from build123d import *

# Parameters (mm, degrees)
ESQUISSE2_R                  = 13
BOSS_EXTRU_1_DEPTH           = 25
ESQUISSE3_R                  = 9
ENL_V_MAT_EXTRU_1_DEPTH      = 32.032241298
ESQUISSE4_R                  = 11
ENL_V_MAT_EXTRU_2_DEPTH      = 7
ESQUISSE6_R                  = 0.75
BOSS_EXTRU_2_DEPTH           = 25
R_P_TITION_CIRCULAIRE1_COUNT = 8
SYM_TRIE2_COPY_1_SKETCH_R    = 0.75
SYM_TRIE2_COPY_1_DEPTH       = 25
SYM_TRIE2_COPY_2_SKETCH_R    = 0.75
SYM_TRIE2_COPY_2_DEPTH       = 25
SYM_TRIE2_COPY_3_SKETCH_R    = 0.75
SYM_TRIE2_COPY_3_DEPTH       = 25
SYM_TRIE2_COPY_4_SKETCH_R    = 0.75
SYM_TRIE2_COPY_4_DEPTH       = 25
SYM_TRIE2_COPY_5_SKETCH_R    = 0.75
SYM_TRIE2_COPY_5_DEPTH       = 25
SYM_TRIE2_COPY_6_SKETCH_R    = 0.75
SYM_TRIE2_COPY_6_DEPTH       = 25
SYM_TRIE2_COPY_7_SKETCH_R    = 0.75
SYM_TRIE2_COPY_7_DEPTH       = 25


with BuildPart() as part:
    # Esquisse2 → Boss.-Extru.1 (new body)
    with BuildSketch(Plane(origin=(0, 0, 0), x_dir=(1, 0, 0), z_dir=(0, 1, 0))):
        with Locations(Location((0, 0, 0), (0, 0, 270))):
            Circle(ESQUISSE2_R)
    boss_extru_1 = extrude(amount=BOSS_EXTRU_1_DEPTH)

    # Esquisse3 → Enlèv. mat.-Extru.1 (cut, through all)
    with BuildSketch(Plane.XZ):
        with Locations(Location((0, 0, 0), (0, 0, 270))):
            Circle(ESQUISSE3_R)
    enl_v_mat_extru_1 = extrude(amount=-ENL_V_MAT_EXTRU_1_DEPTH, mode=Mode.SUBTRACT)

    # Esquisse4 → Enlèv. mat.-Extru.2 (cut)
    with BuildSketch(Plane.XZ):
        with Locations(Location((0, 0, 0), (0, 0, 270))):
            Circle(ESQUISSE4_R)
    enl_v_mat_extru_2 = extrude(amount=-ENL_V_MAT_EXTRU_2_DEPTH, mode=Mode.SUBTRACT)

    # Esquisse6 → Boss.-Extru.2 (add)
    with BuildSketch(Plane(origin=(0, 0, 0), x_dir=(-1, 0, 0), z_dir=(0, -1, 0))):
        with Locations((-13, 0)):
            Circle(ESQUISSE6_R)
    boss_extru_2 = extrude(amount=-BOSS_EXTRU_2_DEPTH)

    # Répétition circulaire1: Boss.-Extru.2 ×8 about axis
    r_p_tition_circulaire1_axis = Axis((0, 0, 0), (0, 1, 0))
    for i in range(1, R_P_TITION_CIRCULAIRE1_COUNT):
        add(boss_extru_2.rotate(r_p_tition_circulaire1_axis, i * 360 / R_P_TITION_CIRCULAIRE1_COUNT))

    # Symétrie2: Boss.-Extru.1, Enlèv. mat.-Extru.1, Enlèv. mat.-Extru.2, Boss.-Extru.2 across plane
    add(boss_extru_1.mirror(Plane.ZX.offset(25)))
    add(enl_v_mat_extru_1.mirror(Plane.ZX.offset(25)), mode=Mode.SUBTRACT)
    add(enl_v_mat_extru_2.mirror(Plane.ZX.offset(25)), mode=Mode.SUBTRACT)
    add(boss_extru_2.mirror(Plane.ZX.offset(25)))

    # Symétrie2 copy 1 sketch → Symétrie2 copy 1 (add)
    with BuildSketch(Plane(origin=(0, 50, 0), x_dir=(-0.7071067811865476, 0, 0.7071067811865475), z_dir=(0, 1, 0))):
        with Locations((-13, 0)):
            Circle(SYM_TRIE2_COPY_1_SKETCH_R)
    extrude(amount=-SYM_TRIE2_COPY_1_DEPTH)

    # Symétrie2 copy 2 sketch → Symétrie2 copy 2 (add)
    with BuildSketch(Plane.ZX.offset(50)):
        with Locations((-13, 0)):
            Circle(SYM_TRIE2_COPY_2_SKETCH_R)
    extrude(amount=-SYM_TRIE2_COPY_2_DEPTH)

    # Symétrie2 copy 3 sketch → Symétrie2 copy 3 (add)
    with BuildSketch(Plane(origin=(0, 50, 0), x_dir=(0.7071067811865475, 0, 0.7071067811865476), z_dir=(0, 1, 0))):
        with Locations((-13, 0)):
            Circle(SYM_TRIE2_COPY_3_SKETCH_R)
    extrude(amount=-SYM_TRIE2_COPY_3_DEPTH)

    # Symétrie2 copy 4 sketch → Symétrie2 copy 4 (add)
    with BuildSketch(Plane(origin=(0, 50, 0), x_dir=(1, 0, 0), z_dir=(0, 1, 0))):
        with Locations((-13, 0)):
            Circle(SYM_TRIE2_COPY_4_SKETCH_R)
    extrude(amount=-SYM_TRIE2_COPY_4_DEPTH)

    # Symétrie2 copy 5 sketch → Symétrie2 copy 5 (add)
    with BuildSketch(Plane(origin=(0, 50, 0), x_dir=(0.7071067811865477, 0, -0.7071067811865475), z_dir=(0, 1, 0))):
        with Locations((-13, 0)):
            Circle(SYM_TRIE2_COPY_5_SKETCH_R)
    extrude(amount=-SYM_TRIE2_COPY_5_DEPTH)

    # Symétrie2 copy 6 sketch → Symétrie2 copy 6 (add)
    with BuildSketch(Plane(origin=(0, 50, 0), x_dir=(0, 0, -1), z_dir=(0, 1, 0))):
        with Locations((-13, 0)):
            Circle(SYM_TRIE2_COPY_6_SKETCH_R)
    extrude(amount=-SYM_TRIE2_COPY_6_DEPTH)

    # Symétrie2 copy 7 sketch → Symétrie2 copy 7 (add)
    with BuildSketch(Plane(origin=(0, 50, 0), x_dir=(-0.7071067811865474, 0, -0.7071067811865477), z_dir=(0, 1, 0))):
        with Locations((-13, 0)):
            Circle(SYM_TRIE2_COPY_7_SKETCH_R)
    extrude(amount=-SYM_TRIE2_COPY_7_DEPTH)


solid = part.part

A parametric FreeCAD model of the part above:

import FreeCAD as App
import Part
import Sketcher

doc = App.newDocument("Part")
body = doc.addObject("PartDesign::Body", "Body")

# Sketch on XZ plane
sketch1 = body.newObject("Sketcher::SketchObject", "Sketch")
sketch1.AttachmentSupport = (doc.getObject("XZ_Plane"), [""])
sketch1.MapMode = "FlatFace"
sketch1.addGeometry(Part.Circle(App.Vector(0, 0, 0), App.Vector(0, 0, 1), 13), False)
sketch1.addConstraint([
    Sketcher.Constraint("Coincident", 0, 3, -1, 1),
    Sketcher.Constraint("Diameter", 0, 26.0),
])
pad1 = body.newObject("PartDesign::Pad", "Pad")
pad1.Profile = sketch1
pad1.Length = 25
pad1.Reversed = True

# Sketch on XZ plane
sketch2 = body.newObject("Sketcher::SketchObject", "Sketch001")
sketch2.AttachmentSupport = (doc.getObject("XZ_Plane"), [""])
sketch2.MapMode = "FlatFace"
sketch2.addGeometry(Part.Circle(App.Vector(0, 0, 0), App.Vector(0, 0, 1), 9), False)
sketch2.addConstraint([
    Sketcher.Constraint("Coincident", 0, 3, -1, 1),
    Sketcher.Constraint("Diameter", 0, 18.0),
])
pocket1 = body.newObject("PartDesign::Pocket", "Pocket")
pocket1.Profile = sketch2
pocket1.Type = "ThroughAll"

# Sketch on XZ plane
sketch3 = body.newObject("Sketcher::SketchObject", "Sketch002")
sketch3.AttachmentSupport = (doc.getObject("XZ_Plane"), [""])
sketch3.MapMode = "FlatFace"
sketch3.addGeometry(Part.Circle(App.Vector(0, 0, 0), App.Vector(0, 0, 1), 11), False)
sketch3.addConstraint([
    Sketcher.Constraint("Coincident", 0, 3, -1, 1),
    Sketcher.Constraint("Diameter", 0, 22.0),
])
pocket2 = body.newObject("PartDesign::Pocket", "Pocket001")
pocket2.Profile = sketch3
pocket2.Length = 7

# Sketch on XZ plane
sketch4 = body.newObject("Sketcher::SketchObject", "Sketch003")
sketch4.AttachmentSupport = (doc.getObject("XZ_Plane"), [""])
sketch4.MapMode = "FlatFace"
sketch4.addGeometry(Part.Circle(App.Vector(13, 0, 0), App.Vector(0, 0, 1), 0.8), False)
sketch4.addConstraint([
    Sketcher.Constraint("PointOnObject", 0, 3, -1),
    Sketcher.Constraint("Diameter", 0, 1.5),
    Sketcher.Constraint("DistanceX", -1, 1, 0, 3, 13.0),
])
pad2 = body.newObject("PartDesign::Pad", "Pad001")
pad2.Profile = sketch4
pad2.Length = 25
pad2.Reversed = True
doc.recompute()

polarpattern = body.newObject("PartDesign::PolarPattern", "PolarPattern")
polarpattern.Originals = [pad2]
polarpattern.Axis = (doc.getObject("Y_Axis"), [""])
polarpattern.Angle = 360
polarpattern.Occurrences = 8
body.Tip = polarpattern
doc.recompute()

datumplane = body.newObject("PartDesign::Plane", "DatumPlane")
datumplane.AttachmentSupport = (doc.getObject("XZ_Plane"), [""])
datumplane.MapMode = "FlatFace"
datumplane.AttachmentOffset = App.Placement(App.Vector(0, 0, -25), App.Rotation())
mirrored = body.newObject("PartDesign::Mirrored", "Mirrored")
mirrored.Originals = [pad1, pocket1, pocket2, pad2]
mirrored.MirrorPlane = (datumplane, [""])
body.Tip = mirrored

# Sketch on XZ plane
sketch5 = body.newObject("Sketcher::SketchObject", "Sketch004")
sketch5.AttachmentSupport = (doc.getObject("XZ_Plane"), [""])
sketch5.MapMode = "FlatFace"
sketch5.AttachmentOffset = App.Placement(App.Vector(0, 0, -50), App.Rotation())
sketch5.addGeometry(Part.Circle(App.Vector(9.2, -9.2, 0), App.Vector(0, 0, 1), 0.8), False)
sketch5.addConstraint([
    Sketcher.Constraint("Diameter", 0, 1.5),
    Sketcher.Constraint("DistanceX", -1, 1, 0, 3, 9.192388),
    Sketcher.Constraint("DistanceY", 0, 3, -1, 1, 9.192388),
])
pad3 = body.newObject("PartDesign::Pad", "Pad002")
pad3.Profile = sketch5
pad3.Length = 25

# Sketch on XZ plane
sketch6 = body.newObject("Sketcher::SketchObject", "Sketch005")
sketch6.AttachmentSupport = (doc.getObject("XZ_Plane"), [""])
sketch6.MapMode = "FlatFace"
sketch6.AttachmentOffset = App.Placement(App.Vector(0, 0, -50), App.Rotation())
sketch6.addGeometry(Part.Circle(App.Vector(0, -13, 0), App.Vector(0, 0, 1), 0.8), False)
sketch6.addConstraint([
    Sketcher.Constraint("PointOnObject", 0, 3, -2),
    Sketcher.Constraint("Diameter", 0, 1.5),
    Sketcher.Constraint("DistanceY", 0, 3, -1, 1, 13.0),
])
pad4 = body.newObject("PartDesign::Pad", "Pad003")
pad4.Profile = sketch6
pad4.Length = 25

# Sketch on XZ plane
sketch7 = body.newObject("Sketcher::SketchObject", "Sketch006")
sketch7.AttachmentSupport = (doc.getObject("XZ_Plane"), [""])
sketch7.MapMode = "FlatFace"
sketch7.AttachmentOffset = App.Placement(App.Vector(0, 0, -50), App.Rotation())
sketch7.addGeometry(Part.Circle(App.Vector(-9.2, -9.2, 0), App.Vector(0, 0, 1), 0.8), False)
sketch7.addConstraint([
    Sketcher.Constraint("Diameter", 0, 1.5),
    Sketcher.Constraint("DistanceX", 0, 3, -1, 1, 9.192388),
    Sketcher.Constraint("DistanceY", 0, 3, -1, 1, 9.192388),
])
pad5 = body.newObject("PartDesign::Pad", "Pad004")
pad5.Profile = sketch7
pad5.Length = 25

# Sketch on XZ plane
sketch8 = body.newObject("Sketcher::SketchObject", "Sketch007")
sketch8.AttachmentSupport = (doc.getObject("XZ_Plane"), [""])
sketch8.MapMode = "FlatFace"
sketch8.AttachmentOffset = App.Placement(App.Vector(0, 0, -50), App.Rotation())
sketch8.addGeometry(Part.Circle(App.Vector(-13, 0, 0), App.Vector(0, 0, 1), 0.8), False)
sketch8.addConstraint([
    Sketcher.Constraint("PointOnObject", 0, 3, -1),
    Sketcher.Constraint("Diameter", 0, 1.5),
    Sketcher.Constraint("DistanceX", 0, 3, -1, 1, 13.0),
])
pad6 = body.newObject("PartDesign::Pad", "Pad005")
pad6.Profile = sketch8
pad6.Length = 25

# Sketch on XZ plane
sketch9 = body.newObject("Sketcher::SketchObject", "Sketch008")
sketch9.AttachmentSupport = (doc.getObject("XZ_Plane"), [""])
sketch9.MapMode = "FlatFace"
sketch9.AttachmentOffset = App.Placement(App.Vector(0, 0, -50), App.Rotation())
sketch9.addGeometry(Part.Circle(App.Vector(-9.2, 9.2, 0), App.Vector(0, 0, 1), 0.8), False)
sketch9.addConstraint([
    Sketcher.Constraint("Diameter", 0, 1.5),
    Sketcher.Constraint("DistanceX", 0, 3, -1, 1, 9.192388),
    Sketcher.Constraint("DistanceY", -1, 1, 0, 3, 9.192388),
])
pad7 = body.newObject("PartDesign::Pad", "Pad006")
pad7.Profile = sketch9
pad7.Length = 25

# Sketch on XZ plane
sketch10 = body.newObject("Sketcher::SketchObject", "Sketch009")
sketch10.AttachmentSupport = (doc.getObject("XZ_Plane"), [""])
sketch10.MapMode = "FlatFace"
sketch10.AttachmentOffset = App.Placement(App.Vector(0, 0, -50), App.Rotation())
sketch10.addGeometry(Part.Circle(App.Vector(0, 13, 0), App.Vector(0, 0, 1), 0.8), False)
sketch10.addConstraint([
    Sketcher.Constraint("PointOnObject", 0, 3, -2),
    Sketcher.Constraint("Diameter", 0, 1.5),
    Sketcher.Constraint("DistanceY", -1, 1, 0, 3, 13.0),
])
pad8 = body.newObject("PartDesign::Pad", "Pad007")
pad8.Profile = sketch10
pad8.Length = 25

# Sketch on XZ plane
sketch11 = body.newObject("Sketcher::SketchObject", "Sketch010")
sketch11.AttachmentSupport = (doc.getObject("XZ_Plane"), [""])
sketch11.MapMode = "FlatFace"
sketch11.AttachmentOffset = App.Placement(App.Vector(0, 0, -50), App.Rotation())
sketch11.addGeometry(Part.Circle(App.Vector(9.2, 9.2, 0), App.Vector(0, 0, 1), 0.8), False)
sketch11.addConstraint([
    Sketcher.Constraint("Diameter", 0, 1.5),
    Sketcher.Constraint("DistanceX", -1, 1, 0, 3, 9.192388),
    Sketcher.Constraint("DistanceY", -1, 1, 0, 3, 9.192388),
])
pad9 = body.newObject("PartDesign::Pad", "Pad008")
pad9.Profile = sketch11
pad9.Length = 25

doc.recompute()
